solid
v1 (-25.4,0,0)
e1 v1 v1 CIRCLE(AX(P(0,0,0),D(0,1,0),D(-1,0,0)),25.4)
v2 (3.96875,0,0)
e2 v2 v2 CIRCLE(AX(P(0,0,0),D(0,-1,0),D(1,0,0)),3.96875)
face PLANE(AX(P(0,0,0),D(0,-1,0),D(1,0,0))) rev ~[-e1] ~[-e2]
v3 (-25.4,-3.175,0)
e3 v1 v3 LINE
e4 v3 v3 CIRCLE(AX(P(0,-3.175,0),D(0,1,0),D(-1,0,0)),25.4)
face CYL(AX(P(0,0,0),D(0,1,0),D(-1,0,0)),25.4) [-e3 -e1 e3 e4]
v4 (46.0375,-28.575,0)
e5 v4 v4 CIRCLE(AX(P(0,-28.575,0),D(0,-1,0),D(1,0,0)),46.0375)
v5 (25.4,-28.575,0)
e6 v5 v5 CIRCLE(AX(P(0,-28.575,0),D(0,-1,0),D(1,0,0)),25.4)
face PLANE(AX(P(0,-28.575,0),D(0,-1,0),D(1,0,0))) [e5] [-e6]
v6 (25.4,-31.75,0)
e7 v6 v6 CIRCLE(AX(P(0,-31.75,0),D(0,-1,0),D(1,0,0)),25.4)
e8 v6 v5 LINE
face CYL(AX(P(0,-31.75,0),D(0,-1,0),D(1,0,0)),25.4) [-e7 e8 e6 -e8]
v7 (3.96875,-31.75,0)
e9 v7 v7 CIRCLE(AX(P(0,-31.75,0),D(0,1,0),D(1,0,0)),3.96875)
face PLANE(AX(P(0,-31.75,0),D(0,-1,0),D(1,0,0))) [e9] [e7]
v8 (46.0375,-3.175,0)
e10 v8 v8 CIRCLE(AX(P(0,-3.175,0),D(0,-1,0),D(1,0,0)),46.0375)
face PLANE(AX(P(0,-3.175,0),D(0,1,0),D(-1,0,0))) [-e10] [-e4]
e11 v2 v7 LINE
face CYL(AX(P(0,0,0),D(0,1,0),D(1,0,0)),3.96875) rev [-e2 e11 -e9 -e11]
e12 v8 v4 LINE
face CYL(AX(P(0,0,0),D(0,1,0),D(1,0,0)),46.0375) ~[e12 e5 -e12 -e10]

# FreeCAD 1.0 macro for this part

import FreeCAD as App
import Part
import Sketcher

V = App.Vector
Q = App.Units.Quantity

doc = App.newDocument("Part")
body = doc.addObject("PartDesign::Body", "Body")

# Sketch on XZ plane
sketch1 = body.newObject("Sketcher::SketchObject", "Sketch")
sketch1.AttachmentSupport = (doc.getObject("XZ_Plane"), [""])
sketch1.MapMode = "FlatFace"
sketch1.addGeometry(Part.Circle(V(0, 0, 0), V(0, 0, 1), 46.0375), False)
sketch1.addConstraint([
    Sketcher.Constraint("Coincident", 0, 3, -1, 1),
    Sketcher.Constraint("Diameter", 0, Q("3.625 in")),
])
pad1 = body.newObject("PartDesign::Pad", "Pad")
pad1.Profile = sketch1
pad1.Length = Q("1.25 in")

# Sketch on XZ plane
sketch2 = body.newObject("Sketcher::SketchObject", "Sketch001")
sketch2.AttachmentSupport = (doc.getObject("XZ_Plane"), [""])
sketch2.MapMode = "FlatFace"
sketch2.AttachmentOffset = App.Placement(V(0, 0, 1.25 * 25.4), App.Rotation())
sketch2.addGeometry([
    Part.Circle(V(0, 0, 0), V(0, 0, 1), 46.0375),
    Part.Circle(V(0, 0, 0), V(0, 0, 1), 25.4),
], False)
sketch2.addConstraint([
    Sketcher.Constraint("Coincident", 0, 3, -1, 1),
    Sketcher.Constraint("Coincident", 1, 3, -1, 1),
    Sketcher.Constraint("Diameter", 1, Q("2 in")),
    Sketcher.Constraint("Diameter", 0, Q("3.625 in")),
])
pocket1 = body.newObject("PartDesign::Pocket", "Pocket")
pocket1.Profile = sketch2
pocket1.Length = Q("0.125 in")

# Sketch on XZ plane
sketch3 = body.newObject("Sketcher::SketchObject", "Sketch002")
sketch3.AttachmentSupport = (doc.getObject("XZ_Plane"), [""])
sketch3.MapMode = "FlatFace"
sketch3.addGeometry([
    Part.Circle(V(0, 0, 0), V(0, 0, 1), 46.0375),
    Part.Circle(V(0, 0, 0), V(0, 0, 1), 25.4),
], False)
sketch3.addConstraint([
    Sketcher.Constraint("Coincident", 0, 3, -1, 1),
    Sketcher.Constraint("Coincident", 1, 3, -1, 1),
    Sketcher.Constraint("Diameter", 1, Q("2 in")),
    Sketcher.Constraint("Diameter", 0, Q("3.625 in")),
])
pocket2 = body.newObject("PartDesign::Pocket", "Pocket001")
pocket2.Profile = sketch3
pocket2.Length = Q("0.125 in")
pocket2.Reversed = True

# Sketch on XZ plane
sketch4 = body.newObject("Sketcher::SketchObject", "Sketch003")
sketch4.AttachmentSupport = (doc.getObject("XZ_Plane"), [""])
sketch4.MapMode = "FlatFace"
sketch4.addGeometry(Part.Circle(V(0, 0, 0), V(0, 0, 1), 3.96875), False)
sketch4.addConstraint([
    Sketcher.Constraint("Coincident", 0, 3, -1, 1),
    Sketcher.Constraint("Diameter", 0, Q("0.3125 in")),
])
pocket3 = body.newObject("PartDesign::Pocket", "Pocket002")
pocket3.Profile = sketch4
pocket3.Type = "ThroughAll"
pocket3.Reversed = True

doc.recompute()
